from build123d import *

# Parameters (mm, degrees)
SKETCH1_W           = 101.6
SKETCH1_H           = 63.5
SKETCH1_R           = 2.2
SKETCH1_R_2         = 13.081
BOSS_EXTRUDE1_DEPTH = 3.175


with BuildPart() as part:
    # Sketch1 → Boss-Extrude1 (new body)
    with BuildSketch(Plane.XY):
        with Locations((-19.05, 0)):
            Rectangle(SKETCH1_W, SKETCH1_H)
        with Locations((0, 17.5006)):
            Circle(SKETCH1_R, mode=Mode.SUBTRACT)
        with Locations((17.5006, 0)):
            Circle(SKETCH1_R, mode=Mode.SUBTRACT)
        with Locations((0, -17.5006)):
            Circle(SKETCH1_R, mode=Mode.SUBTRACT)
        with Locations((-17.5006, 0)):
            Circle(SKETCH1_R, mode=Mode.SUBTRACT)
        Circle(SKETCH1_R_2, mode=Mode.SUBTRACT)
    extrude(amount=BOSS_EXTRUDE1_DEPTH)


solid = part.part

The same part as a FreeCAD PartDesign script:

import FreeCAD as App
import Part
import Sketcher

V = App.Vector
Q = App.Units.Quantity

doc = App.newDocument("Part")
params = doc.addObject("Spreadsheet::Sheet", "Params")
for row, (alias, value) in enumerate([
    ("sketch1_diameter", "1.03 in"),
    ("sketch1_width", "4 in"),
    ("sketch1_height", "2.5 in"),
    ("pad1_length", "0.125 in"),
], start=1):
    params.set(f"A{row}", alias)
    params.set(f"B{row}", "=" + value)
    params.setAlias(f"B{row}", alias)

body = doc.addObject("PartDesign::Body", "Body")

# Sketch on XY plane
sketch1 = body.newObject("Sketcher::SketchObject", "Sketch")
sketch1.AttachmentSupport = (doc.getObject("XY_Plane"), [""])
sketch1.MapMode = "FlatFace"
sketch1.addGeometry(Part.LineSegment(V(-69.85, 31.75, 0), V(-69.85, -31.75, 0)), False)
sketch1.addGeometry(Part.LineSegment(V(-69.85, -31.75, 0), V(31.75, -31.75, 0)), False)
sketch1.addGeometry(Part.LineSegment(V(31.75, -31.75, 0), V(31.75, 31.75, 0)), False)
sketch1.addGeometry(Part.LineSegment(V(31.75, 31.75, 0), V(-69.85, 31.75, 0)), False)
sketch1.addGeometry(Part.Circle(V(0, -17.5006, 0), V(0, 0, 1), 2.2), False)
sketch1.addGeometry(Part.Circle(V(-17.5006, 0, 0), V(0, 0, 1), 2.2), False)
sketch1.addGeometry(Part.Circle(V(0, 0, 0), V(0, 0, 1), 13.081), False)
sketch1.addGeometry(Part.Circle(V(0, 17.5006, 0), V(0, 0, 1), 2.2), False)
sketch1.addGeometry(Part.Circle(V(17.5006, 0, 0), V(0, 0, 1), 2.2), False)
sketch1.addConstraint(Sketcher.Constraint("Coincident", 0, 2, 1, 1))
sketch1.addConstraint(Sketcher.Constraint("Coincident", 1, 2, 2, 1))
sketch1.addConstraint(Sketcher.Constraint("Coincident", 2, 2, 3, 1))
sketch1.addConstraint(Sketcher.Constraint("Coincident", 3, 2, 0, 1))
sketch1.addConstraint(Sketcher.Constraint("Vertical", 0))
sketch1.addConstraint(Sketcher.Constraint("Horizontal", 1))
sketch1.addConstraint(Sketcher.Constraint("Vertical", 2))
sketch1.addConstraint(Sketcher.Constraint("Horizontal", 3))
sketch1.addConstraint(Sketcher.Constraint("Coincident", 6, 3, -1, 1))
sketch1.addConstraint(Sketcher.Constraint("Equal", 4, 5))
sketch1.addConstraint(Sketcher.Constraint("Equal", 5, 7))
sketch1.addConstraint(Sketcher.Constraint("Equal", 7, 8))
sketch1.addConstraint(Sketcher.Constraint("Symmetric", 4, 3, 7, 3, -1, 1))
sketch1.addConstraint(Sketcher.Constraint("Symmetric", 5, 3, 8, 3, -1, 1))
sketch1.addConstraint(Sketcher.Constraint("PointOnObject", 4, 3, -2))
sketch1.addConstraint(Sketcher.Constraint("PointOnObject", 5, 3, -1))
sketch1.addConstraint(Sketcher.Constraint("Diameter", 6, Q("1.03 in")))
sketch1.addConstraint(Sketcher.Constraint("DistanceX", 1, 1, 1, 2, Q("4 in")))
sketch1.addConstraint(Sketcher.Constraint("DistanceY", 0, 2, 0, 1, Q("2.5 in")))
sketch1.addConstraint(Sketcher.Constraint("Diameter", 4, Q("4.4 mm")))
sketch1.addConstraint(Sketcher.Constraint("DistanceX", 0, 2, -1, 1, Q("2.75 in")))
sketch1.addConstraint(Sketcher.Constraint("DistanceY", 0, 2, -1, 1, Q("1.25 in")))
sketch1.addConstraint(Sketcher.Constraint("DistanceY", 4, 3, -1, 1, Q("0.689 in")))
sketch1.addConstraint(Sketcher.Constraint("DistanceX", 5, 3, -1, 1, Q("0.689 in")))
sketch1.setExpression("Constraints[16]", "Params.sketch1_diameter")
sketch1.setExpression("Constraints[17]", "Params.sketch1_width")
sketch1.setExpression("Constraints[18]", "Params.sketch1_height")
pad1 = body.newObject("PartDesign::Pad", "Pad")
pad1.Profile = sketch1
pad1.setExpression("Length", "Params.pad1_length")

doc.recompute()
